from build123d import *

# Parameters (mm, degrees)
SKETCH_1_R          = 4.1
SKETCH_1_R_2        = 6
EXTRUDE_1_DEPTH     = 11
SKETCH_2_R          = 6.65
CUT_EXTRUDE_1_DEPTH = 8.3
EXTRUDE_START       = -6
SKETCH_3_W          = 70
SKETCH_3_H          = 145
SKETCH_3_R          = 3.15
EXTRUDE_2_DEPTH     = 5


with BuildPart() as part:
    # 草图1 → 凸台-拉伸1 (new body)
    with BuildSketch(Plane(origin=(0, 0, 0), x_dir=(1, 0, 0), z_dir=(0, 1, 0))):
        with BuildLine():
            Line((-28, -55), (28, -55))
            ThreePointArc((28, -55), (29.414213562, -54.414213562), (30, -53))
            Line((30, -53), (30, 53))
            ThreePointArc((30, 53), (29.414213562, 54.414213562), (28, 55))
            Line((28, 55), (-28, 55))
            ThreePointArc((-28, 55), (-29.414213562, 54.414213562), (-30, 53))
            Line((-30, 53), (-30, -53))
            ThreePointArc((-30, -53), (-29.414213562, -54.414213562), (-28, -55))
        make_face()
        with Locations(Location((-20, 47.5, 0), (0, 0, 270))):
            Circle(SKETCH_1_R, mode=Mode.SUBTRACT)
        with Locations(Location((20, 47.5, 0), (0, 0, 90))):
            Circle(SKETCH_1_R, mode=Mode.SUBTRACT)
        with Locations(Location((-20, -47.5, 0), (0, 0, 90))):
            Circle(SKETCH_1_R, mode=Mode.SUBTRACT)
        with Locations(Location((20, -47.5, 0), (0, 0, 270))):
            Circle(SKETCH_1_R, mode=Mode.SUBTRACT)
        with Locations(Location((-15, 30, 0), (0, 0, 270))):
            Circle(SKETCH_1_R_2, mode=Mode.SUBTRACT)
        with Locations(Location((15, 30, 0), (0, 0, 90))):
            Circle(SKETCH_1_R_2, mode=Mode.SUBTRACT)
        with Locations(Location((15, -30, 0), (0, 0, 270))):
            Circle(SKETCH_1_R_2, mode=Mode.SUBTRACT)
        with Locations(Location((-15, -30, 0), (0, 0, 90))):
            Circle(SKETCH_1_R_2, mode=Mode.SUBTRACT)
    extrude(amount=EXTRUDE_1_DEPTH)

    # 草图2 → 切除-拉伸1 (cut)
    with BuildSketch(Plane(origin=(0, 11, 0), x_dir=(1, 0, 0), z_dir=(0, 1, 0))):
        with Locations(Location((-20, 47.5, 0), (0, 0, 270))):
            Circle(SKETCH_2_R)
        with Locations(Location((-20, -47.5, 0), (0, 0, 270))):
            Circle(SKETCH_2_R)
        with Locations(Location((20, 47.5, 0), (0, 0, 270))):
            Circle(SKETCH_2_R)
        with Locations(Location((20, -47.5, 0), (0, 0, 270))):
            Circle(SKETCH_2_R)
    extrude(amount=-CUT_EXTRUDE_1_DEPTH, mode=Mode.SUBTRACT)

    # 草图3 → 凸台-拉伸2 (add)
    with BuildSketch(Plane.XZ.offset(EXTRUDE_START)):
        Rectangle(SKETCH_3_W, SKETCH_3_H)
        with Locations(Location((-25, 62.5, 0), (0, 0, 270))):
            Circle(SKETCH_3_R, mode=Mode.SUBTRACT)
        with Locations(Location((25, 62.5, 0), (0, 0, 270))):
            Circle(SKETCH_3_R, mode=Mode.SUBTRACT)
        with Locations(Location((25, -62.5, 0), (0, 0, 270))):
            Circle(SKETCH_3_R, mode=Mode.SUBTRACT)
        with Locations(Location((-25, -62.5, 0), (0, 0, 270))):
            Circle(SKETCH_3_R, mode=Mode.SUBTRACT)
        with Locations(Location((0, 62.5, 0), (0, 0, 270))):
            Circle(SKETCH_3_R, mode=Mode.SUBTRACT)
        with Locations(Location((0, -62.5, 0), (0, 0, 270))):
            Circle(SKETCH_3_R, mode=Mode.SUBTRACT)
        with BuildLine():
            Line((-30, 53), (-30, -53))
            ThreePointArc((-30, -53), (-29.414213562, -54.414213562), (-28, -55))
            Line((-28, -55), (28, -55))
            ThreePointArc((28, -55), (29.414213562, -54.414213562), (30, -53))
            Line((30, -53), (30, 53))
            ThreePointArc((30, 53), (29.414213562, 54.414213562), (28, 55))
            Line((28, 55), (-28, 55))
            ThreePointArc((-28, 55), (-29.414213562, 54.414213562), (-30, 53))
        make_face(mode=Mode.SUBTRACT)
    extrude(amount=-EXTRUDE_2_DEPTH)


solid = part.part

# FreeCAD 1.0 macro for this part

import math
import FreeCAD as App
import Part
import Sketcher

V = App.Vector

doc = App.newDocument("Part")
params = doc.addObject("Spreadsheet::Sheet", "Params")
for row, (alias, value) in enumerate([
    ("sketch1_diameter", "12 mm"),
    ("sketch1_radius", "2 mm"),
    ("sketch1_diameter2", "8.2 mm"),
    ("sketch1_width", "56 mm"),
    ("sketch1_height", "106 mm"),
    ("pad1_length", "11 mm"),
    ("sketch2_diameter", "13.3 mm"),
    ("pocket1_length", "8.3 mm"),
    ("sketch3_radius", "2 mm"),
    ("sketch3_diameter", "6.3 mm"),
    ("sketch3_width", "70 mm"),
    ("sketch3_width2", "56 mm"),
    ("sketch3_height", "145 mm"),
    ("pad2_length", "5 mm"),
], start=1):
    params.set(f"A{row}", alias)
    params.set(f"B{row}", "=" + value)
    params.setAlias(f"B{row}", alias)

body = doc.addObject("PartDesign::Body", "Body")

sketch1 = doc.addObject("Sketcher::SketchObject", "Sketch")
body.addObject(sketch1)
sketch1.AttachmentSupport = (doc.XZ_Plane, [""])
sketch1.MapMode = "FlatFace"
sketch1.addGeometry(Part.LineSegment(V(-28, 55, 0), V(28, 55, 0)), False)
sketch1.addGeometry(Part.ArcOfCircle(Part.Circle(V(28, 53, 0), V(0, 0, 1), 2), math.radians(0), math.radians(90)), False)
sketch1.addGeometry(Part.LineSegment(V(30, 53, 0), V(30, -53, 0)), False)
sketch1.addGeometry(Part.ArcOfCircle(Part.Circle(V(28, -53, 0), V(0, 0, 1), 2), math.radians(-90), math.radians(0)), False)
sketch1.addGeometry(Part.LineSegment(V(28, -55, 0), V(-28, -55, 0)), False)
sketch1.addGeometry(Part.ArcOfCircle(Part.Circle(V(-28, -53, 0), V(0, 0, 1), 2), math.radians(-180), math.radians(-90)), False)
sketch1.addGeometry(Part.LineSegment(V(-30, -53, 0), V(-30, 53, 0)), False)
sketch1.addGeometry(Part.ArcOfCircle(Part.Circle(V(-28, 53, 0), V(0, 0, 1), 2), math.radians(90), math.radians(180)), False)
sketch1.addGeometry(Part.Circle(V(-20, 47.5, 0), V(0, 0, 1), 4.1), False)
sketch1.addGeometry(Part.Circle(V(-15, 30, 0), V(0, 0, 1), 6), False)
sketch1.addGeometry(Part.Circle(V(20, 47.5, 0), V(0, 0, 1), 4.1), False)
sketch1.addGeometry(Part.Circle(V(15, 30, 0), V(0, 0, 1), 6), False)
sketch1.addGeometry(Part.Circle(V(-15, -30, 0), V(0, 0, 1), 6), False)
sketch1.addGeometry(Part.Circle(V(-20, -47.5, 0), V(0, 0, 1), 4.1), False)
sketch1.addGeometry(Part.Circle(V(15, -30, 0), V(0, 0, 1), 6), False)
sketch1.addGeometry(Part.Circle(V(20, -47.5, 0), V(0, 0, 1), 4.1), False)
sketch1.addConstraint(Sketcher.Constraint("Tangent", 0, 2, 1, 2))
sketch1.addConstraint(Sketcher.Constraint("Tangent", 1, 1, 2, 1))
sketch1.addConstraint(Sketcher.Constraint("Tangent", 2, 2, 3, 2))
sketch1.addConstraint(Sketcher.Constraint("Tangent", 3, 1, 4, 1))
sketch1.addConstraint(Sketcher.Constraint("Tangent", 4, 2, 5, 2))
sketch1.addConstraint(Sketcher.Constraint("Tangent", 5, 1, 6, 1))
sketch1.addConstraint(Sketcher.Constraint("Tangent", 6, 2, 7, 2))
sketch1.addConstraint(Sketcher.Constraint("Tangent", 7, 1, 0, 1))
sketch1.addConstraint(Sketcher.Constraint("Horizontal", 0))
sketch1.addConstraint(Sketcher.Constraint("Vertical", 2))
sketch1.addConstraint(Sketcher.Constraint("Horizontal", 4))
sketch1.addConstraint(Sketcher.Constraint("Vertical", 6))
sketch1.addConstraint(Sketcher.Constraint("Equal", 1, 3))
sketch1.addConstraint(Sketcher.Constraint("Equal", 3, 5))
sketch1.addConstraint(Sketcher.Constraint("Equal", 5, 7))
sketch1.addConstraint(Sketcher.Constraint("Equal", 8, 10))
sketch1.addConstraint(Sketcher.Constraint("Equal", 9, 11))
sketch1.addConstraint(Sketcher.Constraint("Equal", 11, 12))
sketch1.addConstraint(Sketcher.Constraint("Equal", 10, 13))
sketch1.addConstraint(Sketcher.Constraint("Equal", 12, 14))
sketch1.addConstraint(Sketcher.Constraint("Equal", 13, 15))
sketch1.addConstraint(Sketcher.Constraint("Symmetric", 1, 3, 5, 3, -1, 1))
sketch1.addConstraint(Sketcher.Constraint("Symmetric", 11, 3, 12, 3, -1, 1))
sketch1.addConstraint(Sketcher.Constraint("Symmetric", 10, 3, 13, 3, -1, 1))
sketch1.addConstraint(Sketcher.Constraint("Symmetric", 9, 3, 14, 3, -1, 1))
sketch1.addConstraint(Sketcher.Constraint("Symmetric", 8, 3, 15, 3, -1, 1))
sketch1.addConstraint(Sketcher.Constraint("Symmetric", 8, 3, 10, 3, -2))
sketch1.addConstraint(Sketcher.Constraint("Symmetric", 9, 3, 11, 3, -2))
sketch1.addConstraint(Sketcher.Constraint("Diameter", 9, 12.0))
sketch1.addConstraint(Sketcher.Constraint("Radius", 1, 2.0))
sketch1.addConstraint(Sketcher.Constraint("Diameter", 8, 8.2))
sketch1.addConstraint(Sketcher.Constraint("DistanceX", 0, 1, 0, 2, 56.0))
sketch1.addConstraint(Sketcher.Constraint("DistanceY", 2, 2, 2, 1, 106.0))
sketch1.addConstraint(Sketcher.Constraint("DistanceX", 8, 3, -1, 1, 20.0))
sketch1.addConstraint(Sketcher.Constraint("DistanceX", 9, 3, -1, 1, 15.0))
sketch1.addConstraint(Sketcher.Constraint("DistanceY", -1, 1, 9, 3, 30.0))
sketch1.addConstraint(Sketcher.Constraint("DistanceY", -1, 1, 8, 3, 47.5))
sketch1.setExpression("Constraints[28]", "Params.sketch1_diameter")
sketch1.setExpression("Constraints[29]", "Params.sketch1_radius")
sketch1.setExpression("Constraints[30]", "Params.sketch1_diameter2")
sketch1.setExpression("Constraints[31]", "Params.sketch1_width")
sketch1.setExpression("Constraints[32]", "Params.sketch1_height")
pad1 = doc.addObject("PartDesign::Pad", "Pad")
body.addObject(pad1)
pad1.Profile = sketch1
pad1.setExpression("Length", "Params.pad1_length")
pad1.Reversed = True

sketch2 = doc.addObject("Sketcher::SketchObject", "Sketch001")
body.addObject(sketch2)
sketch2.AttachmentSupport = (doc.XZ_Plane, [""])
sketch2.MapMode = "FlatFace"
sketch2.AttachmentOffset = App.Placement(V(0, 0, -11), App.Rotation())
sketch2.addGeometry(Part.Circle(V(-20, -48, 0), V(0, 0, 1), 7), False)
sketch2.addGeometry(Part.Circle(V(-20, 48, 0), V(0, 0, 1), 7), False)
sketch2.addGeometry(Part.Circle(V(20, -48, 0), V(0, 0, 1), 7), False)
sketch2.addGeometry(Part.Circle(V(20, 48, 0), V(0, 0, 1), 7), False)
sketch2.addConstraint(Sketcher.Constraint("Equal", 0, 1))
sketch2.addConstraint(Sketcher.Constraint("Equal", 1, 2))
sketch2.addConstraint(Sketcher.Constraint("Equal", 2, 3))
sketch2.addConstraint(Sketcher.Constraint("Symmetric", 1, 3, 2, 3, -1, 1))
sketch2.addConstraint(Sketcher.Constraint("Symmetric", 0, 3, 3, 3, -1, 1))
sketch2.addConstraint(Sketcher.Constraint("Symmetric", 0, 3, 2, 3, -2))
sketch2.addConstraint(Sketcher.Constraint("Diameter", 0, 13.3))
sketch2.addConstraint(Sketcher.Constraint("DistanceX", 0, 3, -1, 1, 20.0))
sketch2.addConstraint(Sketcher.Constraint("DistanceY", 0, 3, 1, 3, 95.0))
sketch2.setExpression("Constraints[6]", "Params.sketch2_diameter")
pocket1 = doc.addObject("PartDesign::Pocket", "Pocket")
body.addObject(pocket1)
pocket1.Profile = sketch2
pocket1.setExpression("Length", "Params.pocket1_length")
pocket1.Reversed = True

sketch3 = doc.addObject("Sketcher::SketchObject", "Sketch002")
body.addObject(sketch3)
sketch3.AttachmentSupport = (doc.XZ_Plane, [""])
sketch3.MapMode = "FlatFace"
sketch3.AttachmentOffset = App.Placement(V(0, 0, -6), App.Rotation())
sketch3.addGeometry(Part.LineSegment(V(-35, 72.5, 0), V(-35, -72.5, 0)), False)
sketch3.addGeometry(Part.LineSegment(V(-35, -72.5, 0), V(35, -72.5, 0)), False)
sketch3.addGeometry(Part.LineSegment(V(35, -72.5, 0), V(35, 72.5, 0)), False)
sketch3.addGeometry(Part.LineSegment(V(35, 72.5, 0), V(-35, 72.5, 0)), False)
sketch3.addGeometry(Part.Circle(V(-25, -62.5, 0), V(0, 0, 1), 3.1), False)
sketch3.addGeometry(Part.Circle(V(0, -62.5, 0), V(0, 0, 1), 3.1), False)
sketch3.addGeometry(Part.Circle(V(25, -62.5, 0), V(0, 0, 1), 3.1), False)
sketch3.addGeometry(Part.Circle(V(-25, 62.5, 0), V(0, 0, 1), 3.1), False)
sketch3.addGeometry(Part.LineSegment(V(-30, -53, 0), V(-30, 53, 0)), False)
sketch3.addGeometry(Part.ArcOfCircle(Part.Circle(V(-28, 53, 0), V(0, 0, 1), 2), math.radians(90), math.radians(180)), False)
sketch3.addGeometry(Part.LineSegment(V(-28, 55, 0), V(28, 55, 0)), False)
sketch3.addGeometry(Part.ArcOfCircle(Part.Circle(V(28, 53, 0), V(0, 0, 1), 2), math.radians(0), math.radians(90)), False)
sketch3.addGeometry(Part.LineSegment(V(30, 53, 0), V(30, -53, 0)), False)
sketch3.addGeometry(Part.ArcOfCircle(Part.Circle(V(28, -53, 0), V(0, 0, 1), 2), math.radians(-90), math.radians(0)), False)
sketch3.addGeometry(Part.LineSegment(V(28, -55, 0), V(-28, -55, 0)), False)
sketch3.addGeometry(Part.ArcOfCircle(Part.Circle(V(-28, -53, 0), V(0, 0, 1), 2), math.radians(-180), math.radians(-90)), False)
sketch3.addGeometry(Part.Circle(V(0, 62.5, 0), V(0, 0, 1), 3.1), False)
sketch3.addGeometry(Part.Circle(V(25, 62.5, 0), V(0, 0, 1), 3.1), False)
sketch3.addConstraint(Sketcher.Constraint("Coincident", 0, 2, 1, 1))
sketch3.addConstraint(Sketcher.Constraint("Coincident", 1, 2, 2, 1))
sketch3.addConstraint(Sketcher.Constraint("Coincident", 2, 2, 3, 1))
sketch3.addConstraint(Sketcher.Constraint("Coincident", 3, 2, 0, 1))
sketch3.addConstraint(Sketcher.Constraint("Tangent", 8, 2, 9, 2))
sketch3.addConstraint(Sketcher.Constraint("Tangent", 9, 1, 10, 1))
sketch3.addConstraint(Sketcher.Constraint("Tangent", 10, 2, 11, 2))
sketch3.addConstraint(Sketcher.Constraint("Tangent", 11, 1, 12, 1))
sketch3.addConstraint(Sketcher.Constraint("Tangent", 12, 2, 13, 2))
sketch3.addConstraint(Sketcher.Constraint("Tangent", 13, 1, 14, 1))
sketch3.addConstraint(Sketcher.Constraint("Tangent", 14, 2, 15, 2))
sketch3.addConstraint(Sketcher.Constraint("Tangent", 15, 1, 8, 1))
sketch3.addConstraint(Sketcher.Constraint("Vertical", 0))
sketch3.addConstraint(Sketcher.Constraint("Horizontal", 1))
sketch3.addConstraint(Sketcher.Constraint("Vertical", 2))
sketch3.addConstraint(Sketcher.Constraint("Horizontal", 3))
sketch3.addConstraint(Sketcher.Constraint("Vertical", 8))
sketch3.addConstraint(Sketcher.Constraint("Horizontal", 10))
sketch3.addConstraint(Sketcher.Constraint("Vertical", 12))
sketch3.addConstraint(Sketcher.Constraint("Horizontal", 14))
sketch3.addConstraint(Sketcher.Constraint("Equal", 4, 5))
sketch3.addConstraint(Sketcher.Constraint("Equal", 5, 6))
sketch3.addConstraint(Sketcher.Constraint("Equal", 6, 7))
sketch3.addConstraint(Sketcher.Constraint("Equal", 9, 11))
sketch3.addConstraint(Sketcher.Constraint("Equal", 11, 13))
sketch3.addConstraint(Sketcher.Constraint("Equal", 13, 15))
sketch3.addConstraint(Sketcher.Constraint("Equal", 7, 16))
sketch3.addConstraint(Sketcher.Constraint("Equal", 16, 17))
sketch3.addConstraint(Sketcher.Constraint("Symmetric", 6, 3, 7, 3, -1, 1))
sketch3.addConstraint(Sketcher.Constraint("Symmetric", 9, 3, 13, 3, -1, 1))
sketch3.addConstraint(Sketcher.Constraint("Symmetric", 5, 3, 16, 3, -1, 1))
sketch3.addConstraint(Sketcher.Constraint("Symmetric", 4, 3, 17, 3, -1, 1))
sketch3.addConstraint(Sketcher.Constraint("Symmetric", 0, 2, 2, 2, -1, 1))
sketch3.addConstraint(Sketcher.Constraint("Symmetric", 4, 3, 6, 3, -2))
sketch3.addConstraint(Sketcher.Constraint("PointOnObject", 5, 3, -2))
sketch3.addConstraint(Sketcher.Constraint("Horizontal", 4, 3, 5, 3))
sketch3.addConstraint(Sketcher.Constraint("Radius", 9, 2.0))
sketch3.addConstraint(Sketcher.Constraint("Diameter", 4, 6.3))
sketch3.addConstraint(Sketcher.Constraint("DistanceX", 1, 1, 1, 2, 70.0))
sketch3.addConstraint(Sketcher.Constraint("DistanceX", 10, 1, 10, 2, 56.0))
sketch3.addConstraint(Sketcher.Constraint("DistanceY", 0, 2, 0, 1, 145.0))
sketch3.addConstraint(Sketcher.Constraint("DistanceY", 8, 1, 8, 2, 106.0))
sketch3.addConstraint(Sketcher.Constraint("DistanceX", 4, 3, -1, 1, 25.0))
sketch3.addConstraint(Sketcher.Constraint("DistanceY", 4, 3, 7, 3, 125.0))
sketch3.setExpression("Constraints[36]", "Params.sketch3_radius")
sketch3.setExpression("Constraints[37]", "Params.sketch3_diameter")
sketch3.setExpression("Constraints[38]", "Params.sketch3_width")
sketch3.setExpression("Constraints[39]", "Params.sketch3_width2")
sketch3.setExpression("Constraints[40]", "Params.sketch3_height")
pad2 = doc.addObject("PartDesign::Pad", "Pad001")
body.addObject(pad2)
pad2.Profile = sketch3
pad2.setExpression("Length", "Params.pad2_length")
pad2.Reversed = True

doc.recompute()
